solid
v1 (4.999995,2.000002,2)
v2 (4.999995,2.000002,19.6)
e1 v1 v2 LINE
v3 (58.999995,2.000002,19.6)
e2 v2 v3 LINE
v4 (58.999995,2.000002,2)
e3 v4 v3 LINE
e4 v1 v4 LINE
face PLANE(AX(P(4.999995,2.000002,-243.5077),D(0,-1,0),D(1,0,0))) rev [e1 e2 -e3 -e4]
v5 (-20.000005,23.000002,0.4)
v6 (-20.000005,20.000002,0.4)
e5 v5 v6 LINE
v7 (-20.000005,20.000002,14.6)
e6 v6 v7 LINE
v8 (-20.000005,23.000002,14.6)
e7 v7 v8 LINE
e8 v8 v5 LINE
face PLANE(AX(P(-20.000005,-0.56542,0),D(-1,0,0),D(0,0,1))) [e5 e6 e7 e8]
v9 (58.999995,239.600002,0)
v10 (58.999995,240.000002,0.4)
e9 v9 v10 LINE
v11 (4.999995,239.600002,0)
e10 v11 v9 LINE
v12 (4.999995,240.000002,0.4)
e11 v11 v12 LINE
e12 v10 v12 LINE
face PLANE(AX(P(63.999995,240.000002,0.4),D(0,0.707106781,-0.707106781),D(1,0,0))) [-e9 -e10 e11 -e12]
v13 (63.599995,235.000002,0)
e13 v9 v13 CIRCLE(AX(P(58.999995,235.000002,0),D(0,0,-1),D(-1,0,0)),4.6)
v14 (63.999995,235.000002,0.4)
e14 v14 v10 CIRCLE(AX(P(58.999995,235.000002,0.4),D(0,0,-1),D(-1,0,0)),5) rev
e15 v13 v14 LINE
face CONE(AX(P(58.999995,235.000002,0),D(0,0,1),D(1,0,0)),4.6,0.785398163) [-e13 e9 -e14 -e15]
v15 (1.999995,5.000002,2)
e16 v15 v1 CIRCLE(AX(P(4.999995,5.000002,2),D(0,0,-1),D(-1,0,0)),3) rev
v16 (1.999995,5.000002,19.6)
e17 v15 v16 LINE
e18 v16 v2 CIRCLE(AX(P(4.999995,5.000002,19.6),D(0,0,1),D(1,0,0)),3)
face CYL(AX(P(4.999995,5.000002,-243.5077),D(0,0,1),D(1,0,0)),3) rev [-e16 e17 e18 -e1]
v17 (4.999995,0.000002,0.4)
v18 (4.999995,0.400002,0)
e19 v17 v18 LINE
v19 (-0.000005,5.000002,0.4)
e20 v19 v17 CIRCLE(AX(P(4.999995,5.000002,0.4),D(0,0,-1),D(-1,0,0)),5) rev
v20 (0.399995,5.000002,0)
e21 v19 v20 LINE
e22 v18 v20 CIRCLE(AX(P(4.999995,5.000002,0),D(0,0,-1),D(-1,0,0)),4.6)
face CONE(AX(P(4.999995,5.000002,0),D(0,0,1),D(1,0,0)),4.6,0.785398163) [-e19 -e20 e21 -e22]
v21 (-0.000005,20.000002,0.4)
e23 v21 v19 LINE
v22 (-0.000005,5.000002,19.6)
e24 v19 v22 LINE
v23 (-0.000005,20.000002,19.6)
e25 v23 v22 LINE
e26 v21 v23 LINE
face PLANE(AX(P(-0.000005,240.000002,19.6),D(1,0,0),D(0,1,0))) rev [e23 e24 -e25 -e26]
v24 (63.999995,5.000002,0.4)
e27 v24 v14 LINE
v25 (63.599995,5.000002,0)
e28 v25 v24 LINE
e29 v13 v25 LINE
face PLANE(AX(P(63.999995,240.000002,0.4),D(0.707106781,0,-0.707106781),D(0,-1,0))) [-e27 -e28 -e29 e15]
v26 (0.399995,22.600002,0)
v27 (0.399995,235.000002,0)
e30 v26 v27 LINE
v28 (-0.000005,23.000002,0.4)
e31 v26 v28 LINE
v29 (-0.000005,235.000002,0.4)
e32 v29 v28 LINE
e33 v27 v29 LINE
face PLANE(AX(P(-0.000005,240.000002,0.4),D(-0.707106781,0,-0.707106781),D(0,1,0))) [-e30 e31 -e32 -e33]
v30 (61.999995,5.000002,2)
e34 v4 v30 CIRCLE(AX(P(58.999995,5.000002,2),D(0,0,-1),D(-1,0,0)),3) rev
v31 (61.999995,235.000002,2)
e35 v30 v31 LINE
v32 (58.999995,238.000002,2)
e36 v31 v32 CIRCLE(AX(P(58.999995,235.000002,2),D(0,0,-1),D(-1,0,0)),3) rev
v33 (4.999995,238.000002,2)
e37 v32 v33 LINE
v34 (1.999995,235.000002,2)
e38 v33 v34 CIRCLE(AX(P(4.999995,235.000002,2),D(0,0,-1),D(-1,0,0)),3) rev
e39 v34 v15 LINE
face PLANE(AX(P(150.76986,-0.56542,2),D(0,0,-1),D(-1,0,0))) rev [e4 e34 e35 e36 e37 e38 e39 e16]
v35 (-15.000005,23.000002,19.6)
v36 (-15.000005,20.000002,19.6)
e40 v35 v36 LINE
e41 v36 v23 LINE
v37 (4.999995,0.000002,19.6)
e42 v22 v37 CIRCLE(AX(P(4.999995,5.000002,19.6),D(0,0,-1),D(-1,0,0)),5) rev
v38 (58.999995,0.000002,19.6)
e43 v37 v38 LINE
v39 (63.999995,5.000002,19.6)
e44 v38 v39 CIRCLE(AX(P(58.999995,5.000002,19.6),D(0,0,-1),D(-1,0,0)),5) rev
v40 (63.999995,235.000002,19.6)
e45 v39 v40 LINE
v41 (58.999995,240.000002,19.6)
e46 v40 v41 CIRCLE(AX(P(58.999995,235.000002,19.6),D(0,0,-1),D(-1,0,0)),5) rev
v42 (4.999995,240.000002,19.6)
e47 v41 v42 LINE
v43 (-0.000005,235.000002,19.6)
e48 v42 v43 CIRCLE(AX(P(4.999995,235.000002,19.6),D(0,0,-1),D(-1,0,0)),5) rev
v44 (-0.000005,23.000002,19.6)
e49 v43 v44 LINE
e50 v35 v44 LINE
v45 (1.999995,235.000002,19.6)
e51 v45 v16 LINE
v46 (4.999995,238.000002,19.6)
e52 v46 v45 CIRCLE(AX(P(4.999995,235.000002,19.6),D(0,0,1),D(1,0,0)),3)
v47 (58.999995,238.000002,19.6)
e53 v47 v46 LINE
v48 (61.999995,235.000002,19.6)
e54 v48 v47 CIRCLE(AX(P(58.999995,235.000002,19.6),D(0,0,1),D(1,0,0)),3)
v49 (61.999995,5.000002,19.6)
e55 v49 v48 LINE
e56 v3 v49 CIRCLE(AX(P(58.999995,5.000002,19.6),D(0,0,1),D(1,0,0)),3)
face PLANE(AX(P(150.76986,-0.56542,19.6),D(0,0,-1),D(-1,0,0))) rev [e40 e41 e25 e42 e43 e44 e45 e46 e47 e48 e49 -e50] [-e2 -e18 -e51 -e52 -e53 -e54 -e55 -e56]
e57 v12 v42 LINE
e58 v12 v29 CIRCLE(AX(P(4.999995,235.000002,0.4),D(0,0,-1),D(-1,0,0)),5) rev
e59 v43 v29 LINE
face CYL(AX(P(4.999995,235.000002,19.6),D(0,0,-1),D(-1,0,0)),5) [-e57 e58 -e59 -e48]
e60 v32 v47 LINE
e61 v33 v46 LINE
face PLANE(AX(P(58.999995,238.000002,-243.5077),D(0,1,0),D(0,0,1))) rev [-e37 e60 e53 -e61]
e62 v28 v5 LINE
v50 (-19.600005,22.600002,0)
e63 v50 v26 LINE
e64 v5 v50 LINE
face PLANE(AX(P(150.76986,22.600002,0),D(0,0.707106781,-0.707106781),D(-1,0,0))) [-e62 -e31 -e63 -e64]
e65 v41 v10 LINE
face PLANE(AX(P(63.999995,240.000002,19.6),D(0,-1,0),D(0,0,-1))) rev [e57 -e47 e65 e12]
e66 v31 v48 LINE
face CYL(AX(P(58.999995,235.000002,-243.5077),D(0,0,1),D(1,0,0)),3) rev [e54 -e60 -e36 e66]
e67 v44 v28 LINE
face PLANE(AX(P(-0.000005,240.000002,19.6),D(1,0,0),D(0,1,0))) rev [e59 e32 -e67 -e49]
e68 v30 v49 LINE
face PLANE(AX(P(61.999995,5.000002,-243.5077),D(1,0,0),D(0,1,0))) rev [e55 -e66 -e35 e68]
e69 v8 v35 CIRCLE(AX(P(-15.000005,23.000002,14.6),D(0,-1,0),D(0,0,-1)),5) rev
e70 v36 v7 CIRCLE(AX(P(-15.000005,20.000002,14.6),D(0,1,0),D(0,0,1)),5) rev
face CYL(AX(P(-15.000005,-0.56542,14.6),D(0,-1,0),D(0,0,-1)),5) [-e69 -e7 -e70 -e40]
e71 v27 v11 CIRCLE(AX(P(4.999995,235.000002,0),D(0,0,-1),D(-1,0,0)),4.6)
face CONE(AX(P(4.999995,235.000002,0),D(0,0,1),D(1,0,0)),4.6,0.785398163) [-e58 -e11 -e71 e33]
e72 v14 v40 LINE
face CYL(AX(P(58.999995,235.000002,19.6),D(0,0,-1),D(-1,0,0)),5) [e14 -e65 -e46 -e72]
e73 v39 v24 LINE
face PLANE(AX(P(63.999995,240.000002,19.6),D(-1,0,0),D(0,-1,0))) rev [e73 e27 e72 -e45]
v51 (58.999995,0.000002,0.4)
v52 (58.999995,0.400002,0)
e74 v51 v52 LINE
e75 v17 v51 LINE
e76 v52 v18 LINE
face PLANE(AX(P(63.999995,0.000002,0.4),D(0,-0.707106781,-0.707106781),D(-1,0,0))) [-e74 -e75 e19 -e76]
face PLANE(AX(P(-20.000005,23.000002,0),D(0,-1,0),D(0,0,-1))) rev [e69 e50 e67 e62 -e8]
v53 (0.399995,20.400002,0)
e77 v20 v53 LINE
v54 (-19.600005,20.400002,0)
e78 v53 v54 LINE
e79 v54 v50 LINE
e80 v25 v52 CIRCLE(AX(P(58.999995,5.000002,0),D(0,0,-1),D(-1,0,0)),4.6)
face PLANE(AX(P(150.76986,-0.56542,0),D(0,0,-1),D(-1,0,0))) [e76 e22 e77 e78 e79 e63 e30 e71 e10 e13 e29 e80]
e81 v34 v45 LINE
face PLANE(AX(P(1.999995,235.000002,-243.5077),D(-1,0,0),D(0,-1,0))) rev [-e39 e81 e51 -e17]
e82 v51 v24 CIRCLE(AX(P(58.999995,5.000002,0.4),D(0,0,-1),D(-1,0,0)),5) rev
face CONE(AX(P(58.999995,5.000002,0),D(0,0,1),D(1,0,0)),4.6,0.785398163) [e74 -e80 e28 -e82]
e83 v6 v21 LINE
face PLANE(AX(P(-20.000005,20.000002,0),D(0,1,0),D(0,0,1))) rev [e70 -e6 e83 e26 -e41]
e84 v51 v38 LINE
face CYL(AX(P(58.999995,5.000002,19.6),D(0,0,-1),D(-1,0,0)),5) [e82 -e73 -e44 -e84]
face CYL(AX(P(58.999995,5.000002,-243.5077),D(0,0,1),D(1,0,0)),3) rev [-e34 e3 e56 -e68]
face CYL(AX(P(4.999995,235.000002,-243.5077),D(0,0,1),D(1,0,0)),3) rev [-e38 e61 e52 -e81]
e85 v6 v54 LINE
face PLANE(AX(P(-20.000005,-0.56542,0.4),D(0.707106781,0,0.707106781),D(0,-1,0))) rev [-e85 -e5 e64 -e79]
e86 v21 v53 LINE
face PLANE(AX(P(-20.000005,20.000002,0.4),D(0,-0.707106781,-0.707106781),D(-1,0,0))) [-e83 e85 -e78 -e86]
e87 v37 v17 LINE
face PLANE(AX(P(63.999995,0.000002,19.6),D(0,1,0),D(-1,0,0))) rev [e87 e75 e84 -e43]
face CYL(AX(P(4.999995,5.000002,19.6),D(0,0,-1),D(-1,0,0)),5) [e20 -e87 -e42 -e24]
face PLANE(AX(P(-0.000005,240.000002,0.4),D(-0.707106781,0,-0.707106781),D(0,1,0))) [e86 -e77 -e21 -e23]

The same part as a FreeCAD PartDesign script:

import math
import FreeCAD as App
import Part
import Sketcher


def edges_at(feature, points):
    """Names of the edges that pass closest to the given points."""
    edges = feature.Shape.Edges
    near = lambda p: min(range(len(edges)), key=lambda i: edges[i].distToShape(Part.Vertex(*p))[0])
    return sorted({f"Edge{near(p) + 1}" for p in points})

doc = App.newDocument("Part")
body = doc.addObject("PartDesign::Body", "Body")

# Sketch on XY plane
sketch1 = body.newObject("Sketcher::SketchObject", "Sketch")
sketch1.AttachmentSupport = (doc.getObject("XY_Plane"), [""])
sketch1.MapMode = "FlatFace"
sketch1.addGeometry([
    Part.LineSegment(App.Vector(-151, 241, 0), App.Vector(-151, 1, 0)),
    Part.LineSegment(App.Vector(-151, 1, 0), App.Vector(-87, 1, 0)),
    Part.LineSegment(App.Vector(-87, 1, 0), App.Vector(-87, 241, 0)),
    Part.LineSegment(App.Vector(-87, 241, 0), App.Vector(-151, 241, 0)),
], False)
sketch1.addConstraint([
    Sketcher.Constraint("Coincident", 0, 2, 1, 1),
    Sketcher.Constraint("Coincident", 1, 2, 2, 1),
    Sketcher.Constraint("Coincident", 2, 2, 3, 1),
    Sketcher.Constraint("Coincident", 3, 2, 0, 1),
    Sketcher.Constraint("Vertical", 0),
    Sketcher.Constraint("Horizontal", 1),
    Sketcher.Constraint("Vertical", 2),
    Sketcher.Constraint("Horizontal", 3),
    Sketcher.Constraint("DistanceX", 1, 1, 1, 2, 64.0),
    Sketcher.Constraint("DistanceY", 0, 2, 0, 1, 240.0),
    Sketcher.Constraint("DistanceX", 0, 2, -1, 1, 150.769865),
    Sketcher.Constraint("DistanceY", -1, 1, 0, 2, 0.565422),
])
pad1 = body.newObject("PartDesign::Pad", "Pad")
pad1.Profile = sketch1
pad1.Length = 19.6
doc.recompute()

fillet = body.newObject("PartDesign::Fillet", "Fillet")
fillet.Base = (pad1, edges_at(pad1, [
    (-86.77, 0.565, 9.8),
    (-150.77, 0.565, 9.8),
    (-150.77, 240.565, 9.8),
    (-86.77, 240.565, 9.8),
]))
fillet.Radius = 5

# Sketch on XY plane
sketch2 = body.newObject("Sketcher::SketchObject", "Sketch001")
sketch2.AttachmentSupport = (doc.getObject("XY_Plane"), [""])
sketch2.MapMode = "FlatFace"
sketch2.AttachmentOffset = App.Placement(App.Vector(0, 0, 19.6), App.Rotation())
sketch2.addGeometry([
    Part.LineSegment(App.Vector(-148.8, 235.6, 0), App.Vector(-148.8, 5.6, 0)),  # 0
    Part.ArcOfCircle(Part.Circle(App.Vector(-145.8, 5.6, 0), App.Vector(0, 0, 1), 3), math.radians(-180), math.radians(-90)),  # 1
    Part.LineSegment(App.Vector(-145.8, 2.6, 0), App.Vector(-91.8, 2.6, 0)),  # 2
    Part.ArcOfCircle(Part.Circle(App.Vector(-91.8, 5.6, 0), App.Vector(0, 0, 1), 3), math.radians(-90), math.radians(0)),  # 3
    Part.LineSegment(App.Vector(-88.8, 5.6, 0), App.Vector(-88.8, 235.6, 0)),  # 4
    Part.ArcOfCircle(Part.Circle(App.Vector(-91.8, 235.6, 0), App.Vector(0, 0, 1), 3), math.radians(0), math.radians(90)),  # 5
    Part.LineSegment(App.Vector(-91.8, 238.6, 0), App.Vector(-145.8, 238.6, 0)),  # 6
    Part.ArcOfCircle(Part.Circle(App.Vector(-145.8, 235.6, 0), App.Vector(0, 0, 1), 3), math.radians(90), math.radians(180)),  # 7
], False)
sketch2.addConstraint([
    Sketcher.Constraint("Tangent", 0, 2, 1, 1),
    Sketcher.Constraint("Tangent", 1, 2, 2, 1),
    Sketcher.Constraint("Tangent", 2, 2, 3, 1),
    Sketcher.Constraint("Tangent", 3, 2, 4, 1),
    Sketcher.Constraint("Tangent", 4, 2, 5, 1),
    Sketcher.Constraint("Tangent", 5, 2, 6, 1),
    Sketcher.Constraint("Tangent", 6, 2, 7, 1),
    Sketcher.Constraint("Tangent", 7, 2, 0, 1),
    Sketcher.Constraint("Vertical", 0),
    Sketcher.Constraint("Horizontal", 2),
    Sketcher.Constraint("Vertical", 4),
    Sketcher.Constraint("Horizontal", 6),
    Sketcher.Constraint("Equal", 1, 3),
    Sketcher.Constraint("Equal", 3, 5),
    Sketcher.Constraint("Equal", 5, 7),
    Sketcher.Constraint("Radius", 1, 3.0),
    Sketcher.Constraint("DistanceX", 2, 1, 2, 2, 54.0),
    Sketcher.Constraint("DistanceY", 0, 2, 0, 1, 230.0),
    Sketcher.Constraint("DistanceX", 1, 3, -1, 1, 145.769865),
    Sketcher.Constraint("DistanceY", -1, 1, 1, 3, 5.565422),
])
pocket1 = body.newObject("PartDesign::Pocket", "Pocket")
pocket1.Profile = sketch2
pocket1.Length = 17.6

# Sketch on YZ plane
sketch3 = body.newObject("Sketcher::SketchObject", "Sketch002")
sketch3.AttachmentSupport = (doc.getObject("YZ_Plane"), [""])
sketch3.MapMode = "FlatFace"
sketch3.AttachmentOffset = App.Placement(App.Vector(0, 0, -150.769865), App.Rotation())
sketch3.addGeometry([
    Part.LineSegment(App.Vector(23.6, 0, 0), App.Vector(20.6, 0, 0)),
    Part.LineSegment(App.Vector(20.6, 0, 0), App.Vector(20.6, 19.6, 0)),
    Part.LineSegment(App.Vector(20.6, 19.6, 0), App.Vector(23.6, 19.6, 0)),
    Part.LineSegment(App.Vector(23.6, 19.6, 0), App.Vector(23.6, 0, 0)),
], False)
sketch3.addConstraint([
    Sketcher.Constraint("Coincident", 0, 2, 1, 1),
    Sketcher.Constraint("Coincident", 1, 2, 2, 1),
    Sketcher.Constraint("Coincident", 2, 2, 3, 1),
    Sketcher.Constraint("Coincident", 3, 2, 0, 1),
    Sketcher.Constraint("Horizontal", 0),
    Sketcher.Constraint("Vertical", 1),
    Sketcher.Constraint("Horizontal", 2),
    Sketcher.Constraint("Vertical", 3),
    Sketcher.Constraint("PointOnObject", 0, 2, -1),
    Sketcher.Constraint("DistanceX", 0, 2, 0, 1, 3.0),
    Sketcher.Constraint("DistanceY", 1, 1, 1, 2, 19.6),
    Sketcher.Constraint("DistanceX", -1, 1, 0, 2, 20.565422),
])
pad2 = body.newObject("PartDesign::Pad", "Pad001")
pad2.Profile = sketch3
pad2.Length = 20
pad2.Reversed = True
doc.recompute()

fillet2 = body.newObject("PartDesign::Fillet", "Fillet001")
fillet2.Base = (pad2, edges_at(pad2, [(-170.77, 22.065, 19.6)]))
fillet2.Radius = 5
body2 = doc.addObject("PartDesign::Body", "Body001")
doc.recompute()

body.Placement = App.Placement(App.Vector(0, -0.56542, 0), App.Rotation(App.Vector(0, 0, 1), 0))
boolean = body2.newObject("PartDesign::Boolean", "Boolean")
boolean.Type = "Fuse"
boolean.addObjects([body])
body3 = doc.addObject("PartDesign::Body", "Body002")
doc.recompute()

body2.Placement = App.Placement(App.Vector(150.76986, 0, 0), App.Rotation(App.Vector(0, 0, 1), 0))
boolean2 = body3.newObject("PartDesign::Boolean", "Boolean001")
boolean2.Type = "Fuse"
boolean2.addObjects([body2])
doc.recompute()

chamfer = body3.newObject("PartDesign::Chamfer", "Chamfer")
chamfer.Base = (boolean2, edges_at(boolean2, [
    (32, 0, 0),
    (64, 120, 0),
    (0, 129, 0),
    (32, 240, 0),
    (1.464, 238.536, 0),
    (62.536, 238.536, 0),
    (62.536, 1.464, 0),
    (1.464, 1.464, 0),
    (0, 12.5, 0),
    (-10, 23, 0),
    (-10, 20, 0),
    (-20, 21.5, 0),
]))
chamfer.Size = 0.4

doc.recompute()
